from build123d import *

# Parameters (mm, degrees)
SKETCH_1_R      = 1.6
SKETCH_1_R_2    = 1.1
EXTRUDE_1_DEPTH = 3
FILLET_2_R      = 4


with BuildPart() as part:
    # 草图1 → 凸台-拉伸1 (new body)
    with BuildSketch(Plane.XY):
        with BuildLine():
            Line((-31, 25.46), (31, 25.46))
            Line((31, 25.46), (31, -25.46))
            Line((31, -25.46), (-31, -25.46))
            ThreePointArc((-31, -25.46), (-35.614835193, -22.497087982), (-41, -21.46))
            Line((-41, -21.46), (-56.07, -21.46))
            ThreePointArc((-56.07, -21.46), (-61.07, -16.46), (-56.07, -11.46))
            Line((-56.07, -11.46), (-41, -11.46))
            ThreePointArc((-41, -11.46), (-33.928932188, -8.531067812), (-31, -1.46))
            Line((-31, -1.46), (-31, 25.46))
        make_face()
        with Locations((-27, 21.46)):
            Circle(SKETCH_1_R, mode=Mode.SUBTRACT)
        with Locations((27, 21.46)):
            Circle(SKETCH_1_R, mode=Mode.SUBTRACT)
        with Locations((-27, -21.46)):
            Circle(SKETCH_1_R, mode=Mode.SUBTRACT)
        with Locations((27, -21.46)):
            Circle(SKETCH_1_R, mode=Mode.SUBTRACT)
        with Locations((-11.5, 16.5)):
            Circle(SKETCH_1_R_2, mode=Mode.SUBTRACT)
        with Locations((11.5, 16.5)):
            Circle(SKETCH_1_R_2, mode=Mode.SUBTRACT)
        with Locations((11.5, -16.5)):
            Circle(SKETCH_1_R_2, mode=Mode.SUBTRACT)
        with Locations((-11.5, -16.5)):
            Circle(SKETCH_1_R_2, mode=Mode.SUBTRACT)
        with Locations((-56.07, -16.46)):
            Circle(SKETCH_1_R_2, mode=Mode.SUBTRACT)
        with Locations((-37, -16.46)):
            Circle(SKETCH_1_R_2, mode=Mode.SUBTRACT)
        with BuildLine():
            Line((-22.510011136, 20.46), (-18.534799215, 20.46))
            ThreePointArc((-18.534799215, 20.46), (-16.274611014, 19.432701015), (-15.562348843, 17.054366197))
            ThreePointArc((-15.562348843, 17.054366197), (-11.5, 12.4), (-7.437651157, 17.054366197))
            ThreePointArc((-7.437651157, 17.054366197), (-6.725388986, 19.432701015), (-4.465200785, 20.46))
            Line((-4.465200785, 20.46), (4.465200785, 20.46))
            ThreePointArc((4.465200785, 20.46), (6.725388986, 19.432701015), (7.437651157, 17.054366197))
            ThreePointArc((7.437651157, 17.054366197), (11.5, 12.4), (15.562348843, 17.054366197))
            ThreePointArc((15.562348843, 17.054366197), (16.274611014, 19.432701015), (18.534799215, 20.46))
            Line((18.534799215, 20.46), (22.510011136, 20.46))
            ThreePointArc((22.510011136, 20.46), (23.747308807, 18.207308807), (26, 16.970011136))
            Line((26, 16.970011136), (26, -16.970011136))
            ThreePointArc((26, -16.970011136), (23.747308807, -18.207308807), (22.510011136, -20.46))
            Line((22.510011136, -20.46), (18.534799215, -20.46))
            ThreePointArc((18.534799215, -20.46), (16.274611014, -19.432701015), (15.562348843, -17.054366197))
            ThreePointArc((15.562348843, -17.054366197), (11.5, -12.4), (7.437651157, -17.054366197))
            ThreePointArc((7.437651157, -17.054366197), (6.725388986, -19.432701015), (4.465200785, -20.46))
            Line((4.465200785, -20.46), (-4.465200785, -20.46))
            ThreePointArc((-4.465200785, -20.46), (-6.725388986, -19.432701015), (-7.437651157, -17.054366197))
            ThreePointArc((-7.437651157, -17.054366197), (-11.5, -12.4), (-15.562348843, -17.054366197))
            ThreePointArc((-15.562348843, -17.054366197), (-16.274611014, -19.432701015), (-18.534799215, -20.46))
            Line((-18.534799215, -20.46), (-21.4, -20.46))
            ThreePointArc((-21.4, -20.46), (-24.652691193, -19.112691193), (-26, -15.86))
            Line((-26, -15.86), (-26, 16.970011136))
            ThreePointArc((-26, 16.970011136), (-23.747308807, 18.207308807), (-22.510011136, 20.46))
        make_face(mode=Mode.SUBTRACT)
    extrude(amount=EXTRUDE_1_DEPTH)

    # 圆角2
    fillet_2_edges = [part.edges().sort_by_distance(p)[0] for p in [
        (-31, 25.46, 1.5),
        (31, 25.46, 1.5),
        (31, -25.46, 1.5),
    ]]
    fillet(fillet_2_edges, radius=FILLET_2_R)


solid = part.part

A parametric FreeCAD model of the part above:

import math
import FreeCAD as App
import Part
import Sketcher

V = App.Vector


def edges_at(feature, points):
    """Names of the edges that pass closest to the given points."""
    edges = feature.Shape.Edges
    near = lambda p: min(range(len(edges)), key=lambda i: edges[i].distToShape(Part.Vertex(*p))[0])
    return sorted({f"Edge{near(p) + 1}" for p in points})

doc = App.newDocument("Part")
params = doc.addObject("Spreadsheet::Sheet", "Params")
for row, (alias, value) in enumerate([
    ("sketch1_radius", "10 mm"),
    ("sketch1_radius2", "5 mm"),
    ("sketch1_radius3", "3 mm"),
    ("sketch1_diameter", "3.2 mm"),
    ("sketch1_diameter2", "2.2 mm"),
    ("pad1_length", "3 mm"),
    ("fillet_radius", "4 mm"),
], start=1):
    params.set(f"A{row}", alias)
    params.set(f"B{row}", "=" + value)
    params.setAlias(f"B{row}", alias)

body = doc.addObject("PartDesign::Body", "Body")

sketch1 = body.newObject("Sketcher::SketchObject", "Sketch")
sketch1.AttachmentSupport = (doc.getObject("XY_Plane"), [""])
sketch1.MapMode = "FlatFace"
sketch1.addGeometry(Part.LineSegment(V(31, 25.5, 0), V(-31, 25.5, 0)), False)
sketch1.addGeometry(Part.LineSegment(V(-31, 25.5, 0), V(-31, -1.5, 0)), False)
sketch1.addGeometry(Part.ArcOfCircle(Part.Circle(V(-41, -1.5, 0), V(0, 0, 1), 10), math.radians(-90), math.radians(0)), False)
sketch1.addGeometry(Part.LineSegment(V(-41, -11.5, 0), V(-56.1, -11.5, 0)), False)
sketch1.addGeometry(Part.ArcOfCircle(Part.Circle(V(-56.1, -16.5, 0), V(0, 0, 1), 5), math.radians(90), math.radians(270)), False)
sketch1.addGeometry(Part.LineSegment(V(-56.1, -21.5, 0), V(-41, -21.5, 0)), False)
sketch1.addGeometry(Part.ArcOfCircle(Part.Circle(V(-41, -36, 0), V(0, 0, 1), 14.5), math.radians(46), math.radians(90)), False)
sketch1.addGeometry(Part.LineSegment(V(-31, -25.5, 0), V(31, -25.5, 0)), False)
sketch1.addGeometry(Part.LineSegment(V(31, -25.5, 0), V(31, 25.5, 0)), False)
sketch1.addGeometry(Part.Circle(V(27, -21.5, 0), V(0, 0, 1), 1.6), False)
sketch1.addGeometry(Part.Circle(V(11.5, -16.5, 0), V(0, 0, 1), 1.1), False)
sketch1.addGeometry(Part.Circle(V(-11.5, -16.5, 0), V(0, 0, 1), 1.1), False)
sketch1.addGeometry(Part.Circle(V(-27, -21.5, 0), V(0, 0, 1), 1.6), False)
sketch1.addGeometry(Part.Circle(V(-37, -16.5, 0), V(0, 0, 1), 1.1), False)
sketch1.addGeometry(Part.Circle(V(-56.1, -16.5, 0), V(0, 0, 1), 1.1), False)
sketch1.addGeometry(Part.LineSegment(V(-22.5, 20.5, 0), V(-18.5, 20.5, 0)), False)
sketch1.addGeometry(Part.ArcOfCircle(Part.Circle(V(-18.5, 17.5, 0), V(0, 0, 1), 3), math.radians(-8), math.radians(90)), False)
sketch1.addGeometry(Part.ArcOfCircle(Part.Circle(V(-11.5, 16.5, 0), V(0, 0, 1), 4.1), math.radians(172), math.radians(368)), False)
sketch1.addGeometry(Part.ArcOfCircle(Part.Circle(V(-4.5, 17.5, 0), V(0, 0, 1), 3), math.radians(90), math.radians(188)), False)
sketch1.addGeometry(Part.LineSegment(V(-4.5, 20.5, 0), V(4.5, 20.5, 0)), False)
sketch1.addGeometry(Part.ArcOfCircle(Part.Circle(V(4.5, 17.5, 0), V(0, 0, 1), 3), math.radians(-8), math.radians(90)), False)
sketch1.addGeometry(Part.ArcOfCircle(Part.Circle(V(11.5, 16.5, 0), V(0, 0, 1), 4.1), math.radians(172), math.radians(368)), False)
sketch1.addGeometry(Part.ArcOfCircle(Part.Circle(V(18.5, 17.5, 0), V(0, 0, 1), 3), math.radians(90), math.radians(188)), False)
sketch1.addGeometry(Part.LineSegment(V(18.5, 20.5, 0), V(22.5, 20.5, 0)), False)
sketch1.addGeometry(Part.ArcOfCircle(Part.Circle(V(27, 21.5, 0), V(0, 0, 1), 4.6), math.radians(-167), math.radians(-103)), False)
sketch1.addGeometry(Part.LineSegment(V(26, 17, 0), V(26, -17, 0)), False)
sketch1.addGeometry(Part.ArcOfCircle(Part.Circle(V(27, -21.5, 0), V(0, 0, 1), 4.6), math.radians(103), math.radians(167)), False)
sketch1.addGeometry(Part.LineSegment(V(22.5, -20.5, 0), V(18.5, -20.5, 0)), False)
sketch1.addGeometry(Part.ArcOfCircle(Part.Circle(V(18.5, -17.5, 0), V(0, 0, 1), 3), math.radians(172), math.radians(270)), False)
sketch1.addGeometry(Part.ArcOfCircle(Part.Circle(V(11.5, -16.5, 0), V(0, 0, 1), 4.1), math.radians(-8), math.radians(188)), False)
sketch1.addGeometry(Part.ArcOfCircle(Part.Circle(V(4.5, -17.5, 0), V(0, 0, 1), 3), math.radians(-90), math.radians(8)), False)
sketch1.addGeometry(Part.LineSegment(V(4.5, -20.5, 0), V(-4.5, -20.5, 0)), False)
sketch1.addGeometry(Part.ArcOfCircle(Part.Circle(V(-4.5, -17.5, 0), V(0, 0, 1), 3), math.radians(172), math.radians(270)), False)
sketch1.addGeometry(Part.ArcOfCircle(Part.Circle(V(-11.5, -16.5, 0), V(0, 0, 1), 4.1), math.radians(-8), math.radians(188)), False)
sketch1.addGeometry(Part.ArcOfCircle(Part.Circle(V(-18.5, -17.5, 0), V(0, 0, 1), 3), math.radians(-90), math.radians(8)), False)
sketch1.addGeometry(Part.LineSegment(V(-18.5, -20.5, 0), V(-21.4, -20.5, 0)), False)
sketch1.addGeometry(Part.ArcOfCircle(Part.Circle(V(-21.4, -15.9, 0), V(0, 0, 1), 4.6), math.radians(-180), math.radians(-90)), False)
sketch1.addGeometry(Part.LineSegment(V(-26, -15.9, 0), V(-26, 17, 0)), False)
sketch1.addGeometry(Part.ArcOfCircle(Part.Circle(V(-27, 21.5, 0), V(0, 0, 1), 4.6), math.radians(-77), math.radians(-13)), False)
sketch1.addGeometry(Part.Circle(V(11.5, 16.5, 0), V(0, 0, 1), 1.1), False)
sketch1.addGeometry(Part.Circle(V(27, 21.5, 0), V(0, 0, 1), 1.6), False)
sketch1.addGeometry(Part.Circle(V(-11.5, 16.5, 0), V(0, 0, 1), 1.1), False)
sketch1.addGeometry(Part.Circle(V(-27, 21.5, 0), V(0, 0, 1), 1.6), False)
sketch1.addConstraint(Sketcher.Constraint("Coincident", 0, 2, 1, 1))
sketch1.addConstraint(Sketcher.Constraint("Tangent", 1, 2, 2, 2))
sketch1.addConstraint(Sketcher.Constraint("Tangent", 2, 1, 3, 1))
sketch1.addConstraint(Sketcher.Constraint("Tangent", 3, 2, 4, 1))
sketch1.addConstraint(Sketcher.Constraint("Tangent", 4, 2, 5, 1))
sketch1.addConstraint(Sketcher.Constraint("Tangent", 5, 2, 6, 2))
sketch1.addConstraint(Sketcher.Constraint("Coincident", 6, 1, 7, 1))
sketch1.addConstraint(Sketcher.Constraint("Coincident", 7, 2, 8, 1))
sketch1.addConstraint(Sketcher.Constraint("Coincident", 8, 2, 0, 1))
sketch1.addConstraint(Sketcher.Constraint("Tangent", 15, 2, 16, 2))
sketch1.addConstraint(Sketcher.Constraint("Tangent", 16, 1, 17, 1))
sketch1.addConstraint(Sketcher.Constraint("Tangent", 17, 2, 18, 2))
sketch1.addConstraint(Sketcher.Constraint("Tangent", 18, 1, 19, 1))
sketch1.addConstraint(Sketcher.Constraint("Tangent", 19, 2, 20, 2))
sketch1.addConstraint(Sketcher.Constraint("Tangent", 20, 1, 21, 1))
sketch1.addConstraint(Sketcher.Constraint("Tangent", 21, 2, 22, 2))
sketch1.addConstraint(Sketcher.Constraint("Tangent", 22, 1, 23, 1))
sketch1.addConstraint(Sketcher.Constraint("Coincident", 23, 2, 24, 1))
sketch1.addConstraint(Sketcher.Constraint("Coincident", 24, 2, 25, 1))
sketch1.addConstraint(Sketcher.Constraint("Coincident", 25, 2, 26, 1))
sketch1.addConstraint(Sketcher.Constraint("Coincident", 26, 2, 27, 1))
sketch1.addConstraint(Sketcher.Constraint("Tangent", 27, 2, 28, 2))
sketch1.addConstraint(Sketcher.Constraint("Tangent", 28, 1, 29, 1))
sketch1.addConstraint(Sketcher.Constraint("Tangent", 29, 2, 30, 2))
sketch1.addConstraint(Sketcher.Constraint("Tangent", 30, 1, 31, 1))
sketch1.addConstraint(Sketcher.Constraint("Tangent", 31, 2, 32, 2))
sketch1.addConstraint(Sketcher.Constraint("Tangent", 32, 1, 33, 1))
sketch1.addConstraint(Sketcher.Constraint("Tangent", 33, 2, 34, 2))
sketch1.addConstraint(Sketcher.Constraint("Tangent", 34, 1, 35, 1))
sketch1.addConstraint(Sketcher.Constraint("Tangent", 35, 2, 36, 2))
sketch1.addConstraint(Sketcher.Constraint("Tangent", 36, 1, 37, 1))
sketch1.addConstraint(Sketcher.Constraint("Coincident", 37, 2, 38, 1))
sketch1.addConstraint(Sketcher.Constraint("Coincident", 38, 2, 15, 1))
sketch1.addConstraint(Sketcher.Constraint("Horizontal", 0))
sketch1.addConstraint(Sketcher.Constraint("Vertical", 1))
sketch1.addConstraint(Sketcher.Constraint("Horizontal", 3))
sketch1.addConstraint(Sketcher.Constraint("Horizontal", 5))
sketch1.addConstraint(Sketcher.Constraint("Horizontal", 7))
sketch1.addConstraint(Sketcher.Constraint("Vertical", 8))
sketch1.addConstraint(Sketcher.Constraint("Horizontal", 15))
sketch1.addConstraint(Sketcher.Constraint("Horizontal", 19))
sketch1.addConstraint(Sketcher.Constraint("Horizontal", 23))
sketch1.addConstraint(Sketcher.Constraint("Vertical", 25))
sketch1.addConstraint(Sketcher.Constraint("Horizontal", 27))
sketch1.addConstraint(Sketcher.Constraint("Horizontal", 31))
sketch1.addConstraint(Sketcher.Constraint("Horizontal", 35))
sketch1.addConstraint(Sketcher.Constraint("Vertical", 37))
sketch1.addConstraint(Sketcher.Constraint("Coincident", 14, 3, 4, 3))
sketch1.addConstraint(Sketcher.Constraint("Coincident", 26, 3, 9, 3))
sketch1.addConstraint(Sketcher.Constraint("Coincident", 29, 3, 10, 3))
sketch1.addConstraint(Sketcher.Constraint("Coincident", 33, 3, 11, 3))
sketch1.addConstraint(Sketcher.Constraint("Coincident", 39, 3, 21, 3))
sketch1.addConstraint(Sketcher.Constraint("Coincident", 40, 3, 24, 3))
sketch1.addConstraint(Sketcher.Constraint("Coincident", 41, 3, 17, 3))
sketch1.addConstraint(Sketcher.Constraint("Coincident", 42, 3, 38, 3))
sketch1.addConstraint(Sketcher.Constraint("Equal", 10, 11))
sketch1.addConstraint(Sketcher.Constraint("Equal", 9, 12))
sketch1.addConstraint(Sketcher.Constraint("Equal", 11, 13))
sketch1.addConstraint(Sketcher.Constraint("Equal", 13, 14))
sketch1.addConstraint(Sketcher.Constraint("Equal", 16, 18))
sketch1.addConstraint(Sketcher.Constraint("Equal", 18, 20))
sketch1.addConstraint(Sketcher.Constraint("Equal", 17, 21))
sketch1.addConstraint(Sketcher.Constraint("Equal", 20, 22))
sketch1.addConstraint(Sketcher.Constraint("Equal", 24, 26))
sketch1.addConstraint(Sketcher.Constraint("Equal", 22, 28))
sketch1.addConstraint(Sketcher.Constraint("Equal", 21, 29))
sketch1.addConstraint(Sketcher.Constraint("Equal", 28, 30))
sketch1.addConstraint(Sketcher.Constraint("Equal", 30, 32))
sketch1.addConstraint(Sketcher.Constraint("Equal", 29, 33))
sketch1.addConstraint(Sketcher.Constraint("Equal", 32, 34))
sketch1.addConstraint(Sketcher.Constraint("Equal", 26, 36))
sketch1.addConstraint(Sketcher.Constraint("Equal", 36, 38))
sketch1.addConstraint(Sketcher.Constraint("Equal", 14, 39))
sketch1.addConstraint(Sketcher.Constraint("Equal", 12, 40))
sketch1.addConstraint(Sketcher.Constraint("Equal", 39, 41))
sketch1.addConstraint(Sketcher.Constraint("Equal", 40, 42))
sketch1.addConstraint(Sketcher.Constraint("Symmetric", 10, 3, 17, 3, -1, 1))
sketch1.addConstraint(Sketcher.Constraint("Symmetric", 11, 3, 21, 3, -1, 1))
sketch1.addConstraint(Sketcher.Constraint("Symmetric", 12, 3, 24, 3, -1, 1))
sketch1.addConstraint(Sketcher.Constraint("Symmetric", 9, 3, 38, 3, -1, 1))
sketch1.addConstraint(Sketcher.Constraint("Symmetric", 0, 2, 7, 2, -1, 1))
sketch1.addConstraint(Sketcher.Constraint("Symmetric", 10, 3, 11, 3, -2))
sketch1.addConstraint(Sketcher.Constraint("Symmetric", 9, 3, 12, 3, -2))
sketch1.addConstraint(Sketcher.Constraint("Horizontal", 4, 3, 13, 3))
sketch1.addConstraint(Sketcher.Constraint("Horizontal", 16, 3, 18, 3))
sketch1.addConstraint(Sketcher.Constraint("Horizontal", 20, 3, 22, 3))
sketch1.addConstraint(Sketcher.Constraint("Horizontal", 28, 3, 30, 3))
sketch1.addConstraint(Sketcher.Constraint("Horizontal", 32, 3, 34, 3))
sketch1.addConstraint(Sketcher.Constraint("Horizontal", 26, 3, 4, 2))
sketch1.addConstraint(Sketcher.Constraint("Horizontal", 24, 2, 37, 2))
sketch1.addConstraint(Sketcher.Constraint("Vertical", 2, 3, 6, 3))
sketch1.addConstraint(Sketcher.Constraint("Vertical", 22, 3, 28, 3))
sketch1.addConstraint(Sketcher.Constraint("Vertical", 1, 2, 6, 1))
sketch1.addConstraint(Sketcher.Constraint("Radius", 2, 10.0))
sketch1.addConstraint(Sketcher.Constraint("Radius", 4, 5.0))
sketch1.addConstraint(Sketcher.Constraint("Radius", 16, 3.0))
sketch1.addConstraint(Sketcher.Constraint("Diameter", 9, 3.2))
sketch1.addConstraint(Sketcher.Constraint("Diameter", 10, 2.2))
sketch1.addConstraint(Sketcher.Constraint("Radius", 6, 14.5))
sketch1.addConstraint(Sketcher.Constraint("Radius", 17, 4.1))
sketch1.addConstraint(Sketcher.Constraint("Radius", 24, 4.6))
sketch1.addConstraint(Sketcher.Constraint("DistanceX", 0, 2, 0, 1, 62.0))
sketch1.addConstraint(Sketcher.Constraint("DistanceX", -1, 1, 9, 3, 27.0))
sketch1.addConstraint(Sketcher.Constraint("DistanceX", 13, 3, -1, 1, 37.0))
sketch1.addConstraint(Sketcher.Constraint("DistanceX", -1, 1, 24, 2, 26.0))
sketch1.addConstraint(Sketcher.Constraint("DistanceX", 3, 2, 3, 1, 15.07))
sketch1.addConstraint(Sketcher.Constraint("DistanceY", 1, 2, 1, 1, 26.92))
sketch1.addConstraint(Sketcher.Constraint("DistanceX", -1, 1, 10, 3, 11.5))
sketch1.addConstraint(Sketcher.Constraint("DistanceY", 10, 3, -1, 1, 16.5))
sketch1.addConstraint(Sketcher.Constraint("DistanceY", -1, 1, 16, 3, 17.46))
sketch1.setExpression("Constraints[93]", "Params.sketch1_radius")
sketch1.setExpression("Constraints[94]", "Params.sketch1_radius2")
sketch1.setExpression("Constraints[95]", "Params.sketch1_radius3")
sketch1.setExpression("Constraints[96]", "Params.sketch1_diameter")
sketch1.setExpression("Constraints[97]", "Params.sketch1_diameter2")
pad1 = body.newObject("PartDesign::Pad", "Pad")
pad1.Profile = sketch1
pad1.setExpression("Length", "Params.pad1_length")
doc.recompute()

fillet = body.newObject("PartDesign::Fillet", "Fillet")
fillet.Base = (pad1, edges_at(pad1, [(-31, 25.46, 1.5), (31, 25.46, 1.5), (31, -25.46, 1.5)]))
fillet.setExpression("Radius", "Params.fillet_radius")

doc.recompute()
